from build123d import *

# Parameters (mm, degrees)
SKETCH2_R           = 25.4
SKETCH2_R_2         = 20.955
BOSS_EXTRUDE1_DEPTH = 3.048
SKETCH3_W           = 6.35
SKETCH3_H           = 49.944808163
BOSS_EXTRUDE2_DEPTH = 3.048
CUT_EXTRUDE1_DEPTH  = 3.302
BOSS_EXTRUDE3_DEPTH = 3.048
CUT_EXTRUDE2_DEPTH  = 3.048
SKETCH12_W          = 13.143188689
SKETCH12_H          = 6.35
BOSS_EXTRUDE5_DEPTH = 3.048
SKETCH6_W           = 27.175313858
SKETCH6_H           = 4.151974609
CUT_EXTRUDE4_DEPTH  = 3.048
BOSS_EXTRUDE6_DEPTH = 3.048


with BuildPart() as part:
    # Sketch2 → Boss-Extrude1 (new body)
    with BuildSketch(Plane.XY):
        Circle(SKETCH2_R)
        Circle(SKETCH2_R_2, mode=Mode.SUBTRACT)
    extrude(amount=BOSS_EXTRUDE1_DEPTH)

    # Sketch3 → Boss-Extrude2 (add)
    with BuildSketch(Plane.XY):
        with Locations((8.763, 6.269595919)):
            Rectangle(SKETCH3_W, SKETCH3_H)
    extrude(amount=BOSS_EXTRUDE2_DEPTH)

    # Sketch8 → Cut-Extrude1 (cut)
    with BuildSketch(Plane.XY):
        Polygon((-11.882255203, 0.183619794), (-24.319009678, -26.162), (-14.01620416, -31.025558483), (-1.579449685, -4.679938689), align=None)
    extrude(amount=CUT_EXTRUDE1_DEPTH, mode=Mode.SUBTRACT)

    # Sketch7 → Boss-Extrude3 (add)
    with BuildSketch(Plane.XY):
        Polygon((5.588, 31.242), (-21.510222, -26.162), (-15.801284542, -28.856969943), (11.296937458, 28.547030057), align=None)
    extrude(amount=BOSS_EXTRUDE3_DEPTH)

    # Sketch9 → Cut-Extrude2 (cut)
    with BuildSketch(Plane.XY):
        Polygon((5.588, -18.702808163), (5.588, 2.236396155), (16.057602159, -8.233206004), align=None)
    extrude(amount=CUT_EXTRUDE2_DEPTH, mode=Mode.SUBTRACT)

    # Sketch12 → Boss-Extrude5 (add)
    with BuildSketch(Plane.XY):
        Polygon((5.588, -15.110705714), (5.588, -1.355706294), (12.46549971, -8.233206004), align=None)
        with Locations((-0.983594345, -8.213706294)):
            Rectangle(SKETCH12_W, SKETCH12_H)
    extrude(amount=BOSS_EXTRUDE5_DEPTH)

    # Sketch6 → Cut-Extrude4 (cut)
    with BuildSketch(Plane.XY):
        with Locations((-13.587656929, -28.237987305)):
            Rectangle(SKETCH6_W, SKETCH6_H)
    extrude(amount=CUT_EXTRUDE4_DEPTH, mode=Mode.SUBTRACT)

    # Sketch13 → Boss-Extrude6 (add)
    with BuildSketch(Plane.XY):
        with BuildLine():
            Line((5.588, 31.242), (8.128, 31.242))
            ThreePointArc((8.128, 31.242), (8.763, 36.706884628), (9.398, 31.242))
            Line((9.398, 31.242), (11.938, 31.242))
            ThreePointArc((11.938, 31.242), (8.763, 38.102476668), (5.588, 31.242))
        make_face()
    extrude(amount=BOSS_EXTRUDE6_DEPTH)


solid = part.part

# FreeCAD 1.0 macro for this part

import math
import FreeCAD as App
import Part
import Sketcher
Q = App.Units.Quantity


def add_polygon(sketch, points):
    """Adds a closed chain of lines whose ends are joined by coincident constraints."""
    first, n = sketch.GeometryCount, len(points)
    for a, b in zip(points, points[1:] + points[:1]):
        sketch.addGeometry(Part.LineSegment(App.Vector(*a, 0), App.Vector(*b, 0)), False)
    for i in range(n):
        sketch.addConstraint(Sketcher.Constraint("Coincident", first + i, 2, first + (i + 1) % n, 1))

doc = App.newDocument("Part")
body = doc.addObject("PartDesign::Body", "Body")

# Sketch on XY plane
sketch1 = body.newObject("Sketcher::SketchObject", "Sketch")
sketch1.AttachmentSupport = (doc.getObject("XY_Plane"), [""])
sketch1.MapMode = "FlatFace"
sketch1.addGeometry([
    Part.Circle(App.Vector(0, 0, 0), App.Vector(0, 0, 1), 25),
    Part.Circle(App.Vector(0, 0, 0), App.Vector(0, 0, 1), 21),
], False)
sketch1.addConstraint([
    Sketcher.Constraint("Coincident", 0, 3, -1, 1),
    Sketcher.Constraint("Coincident", 1, 3, -1, 1),
    Sketcher.Constraint("Diameter", 0, Q("2 in")),
    Sketcher.Constraint("Diameter", 1, Q("1.65 in")),
])
pad1 = body.newObject("PartDesign::Pad", "Pad")
pad1.Profile = sketch1
pad1.Length = Q("0.12 in")

# Sketch on XY plane
sketch2 = body.newObject("Sketcher::SketchObject", "Sketch001")
sketch2.AttachmentSupport = (doc.getObject("XY_Plane"), [""])
sketch2.MapMode = "FlatFace"
add_polygon(sketch2, [(6, 31), (6, -19), (12, -19), (12, 31)])  # lines 0-3
sketch2.addConstraint([
    Sketcher.Constraint("Vertical", 0),
    Sketcher.Constraint("Horizontal", 1),
    Sketcher.Constraint("Vertical", 2),
    Sketcher.Constraint("Horizontal", 3),
    Sketcher.Constraint("DistanceX", 1, 1, 1, 2, Q("0.25 in")),
    Sketcher.Constraint("DistanceX", -1, 1, 0, 2, Q("0.22 in")),
    Sketcher.Constraint("DistanceY", -1, 1, 2, 2, Q("1.23 in")),
    Sketcher.Constraint("DistanceY", 0, 2, 0, 1, Q("49.944808 mm")),
])
pad2 = body.newObject("PartDesign::Pad", "Pad001")
pad2.Profile = sketch2
pad2.Length = Q("0.12 in")

# Sketch on XY plane
sketch3 = body.newObject("Sketcher::SketchObject", "Sketch002")
sketch3.AttachmentSupport = (doc.getObject("XY_Plane"), [""])
sketch3.MapMode = "FlatFace"
add_polygon(sketch3, [(-12, 0), (-24, -26), (-14, -31), (-2, -5)])  # lines 0-3
sketch3.addConstraint([
    Sketcher.Constraint("Perpendicular", 0, 1),
    Sketcher.Constraint("Perpendicular", 1, 2),
    Sketcher.Constraint("Perpendicular", 2, 3),
    Sketcher.Constraint("DistanceY", 0, 2, -1, 1, Q("1.03 in")),
    Sketcher.Constraint("Distance", 1, Q("11.393068 mm")),
    Sketcher.Constraint("DistanceX", 0, 2, -1, 1, Q("24.31901 mm")),
    Sketcher.Constraint("DistanceY", 1, 2, -1, 1, Q("31.025558 mm")),
    Sketcher.Constraint("DistanceX", 2, 2, -1, 1, Q("1.57945 mm")),
])
pocket1 = body.newObject("PartDesign::Pocket", "Pocket")
pocket1.Profile = sketch3
pocket1.Length = Q("0.13 in")
pocket1.Reversed = True

# Sketch on XY plane
sketch4 = body.newObject("Sketcher::SketchObject", "Sketch003")
sketch4.AttachmentSupport = (doc.getObject("XY_Plane"), [""])
sketch4.MapMode = "FlatFace"
add_polygon(sketch4, [(6, 31), (-22, -26), (-16, -29), (11, 29)])  # lines 0-3
sketch4.addConstraint([
    Sketcher.Constraint("Perpendicular", 0, 1),
    Sketcher.Constraint("Perpendicular", 1, 2),
    Sketcher.Constraint("Perpendicular", 2, 3),
    Sketcher.Constraint("DistanceY", 0, 2, -1, 1, Q("1.03 in")),
    Sketcher.Constraint("DistanceX", -1, 1, 3, 2, Q("0.22 in")),
    Sketcher.Constraint("DistanceY", -1, 1, 3, 2, Q("1.23 in")),
    Sketcher.Constraint("Distance", 0, Q("63.478602 mm")),
    Sketcher.Constraint("Distance", 1, Q("6.313068 mm")),
])
pad3 = body.newObject("PartDesign::Pad", "Pad002")
pad3.Profile = sketch4
pad3.Length = Q("0.12 in")

# Sketch on XY plane
sketch5 = body.newObject("Sketcher::SketchObject", "Sketch004")
sketch5.AttachmentSupport = (doc.getObject("XY_Plane"), [""])
sketch5.MapMode = "FlatFace"
add_polygon(sketch5, [(6, 2), (6, -19), (16, -8)])  # lines 0-2
sketch5.addConstraint([
    Sketcher.Constraint("Vertical", 0),
    Sketcher.Constraint("Perpendicular", 1, 2),
    Sketcher.Constraint("Equal", 1, 2),
    Sketcher.Constraint("DistanceX", -1, 1, 0, 2, Q("0.22 in")),
    Sketcher.Constraint("DistanceY", 0, 2, 0, 1, Q("20.939204 mm")),
    Sketcher.Constraint("DistanceY", 0, 2, -1, 1, Q("18.702808 mm")),
])
pocket2 = body.newObject("PartDesign::Pocket", "Pocket001")
pocket2.Profile = sketch5
pocket2.Length = Q("0.12 in")
pocket2.Reversed = True

# Sketch on XY plane
sketch6 = body.newObject("Sketcher::SketchObject", "Sketch005")
sketch6.AttachmentSupport = (doc.getObject("XY_Plane"), [""])
sketch6.MapMode = "FlatFace"
add_polygon(sketch6, [(5.6, -11.4), (5.6, -15.1), (12.5, -8.2), (5.6, -1.4), (5.6, -5), (-7.6, -5), (-7.6, -11.4)])  # lines 0-6
sketch6.addConstraint([
    Sketcher.Constraint("Vertical", 0),
    Sketcher.Constraint("Vertical", 3),
    Sketcher.Constraint("Horizontal", 4),
    Sketcher.Constraint("Vertical", 5),
    Sketcher.Constraint("Horizontal", 6),
    Sketcher.Constraint("Perpendicular", 1, 2),
    Sketcher.Constraint("Vertical", 0, 2, 2, 2),
    Sketcher.Constraint("Equal", 1, 2),
    Sketcher.Constraint("DistanceY", 5, 2, 5, 1, Q("0.25 in")),
    Sketcher.Constraint("DistanceY", 3, 2, 3, 1, Q("0.145 in")),
    Sketcher.Constraint("DistanceX", -1, 1, 0, 2, Q("0.22 in")),
    Sketcher.Constraint("DistanceY", 0, 2, 0, 1, Q("3.721999 mm")),
    Sketcher.Constraint("DistanceX", 4, 2, 4, 1, Q("13.143189 mm")),
    Sketcher.Constraint("DistanceY", 0, 2, -1, 1, Q("15.110706 mm")),
])
pad4 = body.newObject("PartDesign::Pad", "Pad003")
pad4.Profile = sketch6
pad4.Length = Q("0.12 in")

# Sketch on XY plane
sketch7 = body.newObject("Sketcher::SketchObject", "Sketch006")
sketch7.AttachmentSupport = (doc.getObject("XY_Plane"), [""])
sketch7.MapMode = "FlatFace"
add_polygon(sketch7, [(-27.2, -26.2), (-27.2, -30.3), (0, -30.3), (0, -26.2)])  # lines 0-3
sketch7.addConstraint([
    Sketcher.Constraint("Vertical", 0),
    Sketcher.Constraint("Horizontal", 1),
    Sketcher.Constraint("Vertical", 2),
    Sketcher.Constraint("Horizontal", 3),
    Sketcher.Constraint("PointOnObject", 1, 2, -2),
    Sketcher.Constraint("DistanceY", 2, 2, -1, 1, Q("1.03 in")),
    Sketcher.Constraint("DistanceX", 1, 1, 1, 2, Q("27.175314 mm")),
    Sketcher.Constraint("DistanceY", 0, 2, 0, 1, Q("4.151975 mm")),
])
pocket3 = body.newObject("PartDesign::Pocket", "Pocket002")
pocket3.Profile = sketch7
pocket3.Length = Q("0.12 in")
pocket3.Reversed = True

# Sketch on XY plane
sketch8 = body.newObject("Sketcher::SketchObject", "Sketch007")
sketch8.AttachmentSupport = (doc.getObject("XY_Plane"), [""])
sketch8.MapMode = "FlatFace"
sketch8.addGeometry([
    Part.LineSegment(App.Vector(5.6, 31.2, 0), App.Vector(8.1, 31.2, 0)),
    Part.ArcOfCircle(Part.Circle(App.Vector(8.8, 33.9, 0), App.Vector(0, 0, 1), 2.8), math.radians(-77), math.radians(257)),
    Part.LineSegment(App.Vector(9.4, 31.2, 0), App.Vector(11.9, 31.2, 0)),
    Part.ArcOfCircle(Part.Circle(App.Vector(8.8, 33.9, 0), App.Vector(0, 0, 1), 4.2), math.radians(-40), math.radians(220)),
], False)
sketch8.addConstraint([
    Sketcher.Constraint("Coincident", 0, 2, 1, 2),
    Sketcher.Constraint("Coincident", 1, 1, 2, 1),
    Sketcher.Constraint("Coincident", 2, 2, 3, 1),
    Sketcher.Constraint("Coincident", 3, 2, 0, 1),
    Sketcher.Constraint("Horizontal", 0),
    Sketcher.Constraint("Horizontal", 2),
    Sketcher.Constraint("Coincident", 3, 3, 1, 3),
    Sketcher.Constraint("Horizontal", 0, 2, 1, 1),
    Sketcher.Constraint("DistanceX", 0, 1, 0, 2, Q("0.1 in")),
    Sketcher.Constraint("DistanceX", -1, 1, 0, 2, Q("0.32 in")),
    Sketcher.Constraint("DistanceY", -1, 1, 0, 2, Q("1.23 in")),
    Sketcher.Constraint("DistanceX", -1, 1, 1, 1, Q("0.37 in")),
    Sketcher.Constraint("Radius", 1, Q("2.769335 mm")),
])
pad5 = body.newObject("PartDesign::Pad", "Pad004")
pad5.Profile = sketch8
pad5.Length = Q("0.12 in")

doc.recompute()
